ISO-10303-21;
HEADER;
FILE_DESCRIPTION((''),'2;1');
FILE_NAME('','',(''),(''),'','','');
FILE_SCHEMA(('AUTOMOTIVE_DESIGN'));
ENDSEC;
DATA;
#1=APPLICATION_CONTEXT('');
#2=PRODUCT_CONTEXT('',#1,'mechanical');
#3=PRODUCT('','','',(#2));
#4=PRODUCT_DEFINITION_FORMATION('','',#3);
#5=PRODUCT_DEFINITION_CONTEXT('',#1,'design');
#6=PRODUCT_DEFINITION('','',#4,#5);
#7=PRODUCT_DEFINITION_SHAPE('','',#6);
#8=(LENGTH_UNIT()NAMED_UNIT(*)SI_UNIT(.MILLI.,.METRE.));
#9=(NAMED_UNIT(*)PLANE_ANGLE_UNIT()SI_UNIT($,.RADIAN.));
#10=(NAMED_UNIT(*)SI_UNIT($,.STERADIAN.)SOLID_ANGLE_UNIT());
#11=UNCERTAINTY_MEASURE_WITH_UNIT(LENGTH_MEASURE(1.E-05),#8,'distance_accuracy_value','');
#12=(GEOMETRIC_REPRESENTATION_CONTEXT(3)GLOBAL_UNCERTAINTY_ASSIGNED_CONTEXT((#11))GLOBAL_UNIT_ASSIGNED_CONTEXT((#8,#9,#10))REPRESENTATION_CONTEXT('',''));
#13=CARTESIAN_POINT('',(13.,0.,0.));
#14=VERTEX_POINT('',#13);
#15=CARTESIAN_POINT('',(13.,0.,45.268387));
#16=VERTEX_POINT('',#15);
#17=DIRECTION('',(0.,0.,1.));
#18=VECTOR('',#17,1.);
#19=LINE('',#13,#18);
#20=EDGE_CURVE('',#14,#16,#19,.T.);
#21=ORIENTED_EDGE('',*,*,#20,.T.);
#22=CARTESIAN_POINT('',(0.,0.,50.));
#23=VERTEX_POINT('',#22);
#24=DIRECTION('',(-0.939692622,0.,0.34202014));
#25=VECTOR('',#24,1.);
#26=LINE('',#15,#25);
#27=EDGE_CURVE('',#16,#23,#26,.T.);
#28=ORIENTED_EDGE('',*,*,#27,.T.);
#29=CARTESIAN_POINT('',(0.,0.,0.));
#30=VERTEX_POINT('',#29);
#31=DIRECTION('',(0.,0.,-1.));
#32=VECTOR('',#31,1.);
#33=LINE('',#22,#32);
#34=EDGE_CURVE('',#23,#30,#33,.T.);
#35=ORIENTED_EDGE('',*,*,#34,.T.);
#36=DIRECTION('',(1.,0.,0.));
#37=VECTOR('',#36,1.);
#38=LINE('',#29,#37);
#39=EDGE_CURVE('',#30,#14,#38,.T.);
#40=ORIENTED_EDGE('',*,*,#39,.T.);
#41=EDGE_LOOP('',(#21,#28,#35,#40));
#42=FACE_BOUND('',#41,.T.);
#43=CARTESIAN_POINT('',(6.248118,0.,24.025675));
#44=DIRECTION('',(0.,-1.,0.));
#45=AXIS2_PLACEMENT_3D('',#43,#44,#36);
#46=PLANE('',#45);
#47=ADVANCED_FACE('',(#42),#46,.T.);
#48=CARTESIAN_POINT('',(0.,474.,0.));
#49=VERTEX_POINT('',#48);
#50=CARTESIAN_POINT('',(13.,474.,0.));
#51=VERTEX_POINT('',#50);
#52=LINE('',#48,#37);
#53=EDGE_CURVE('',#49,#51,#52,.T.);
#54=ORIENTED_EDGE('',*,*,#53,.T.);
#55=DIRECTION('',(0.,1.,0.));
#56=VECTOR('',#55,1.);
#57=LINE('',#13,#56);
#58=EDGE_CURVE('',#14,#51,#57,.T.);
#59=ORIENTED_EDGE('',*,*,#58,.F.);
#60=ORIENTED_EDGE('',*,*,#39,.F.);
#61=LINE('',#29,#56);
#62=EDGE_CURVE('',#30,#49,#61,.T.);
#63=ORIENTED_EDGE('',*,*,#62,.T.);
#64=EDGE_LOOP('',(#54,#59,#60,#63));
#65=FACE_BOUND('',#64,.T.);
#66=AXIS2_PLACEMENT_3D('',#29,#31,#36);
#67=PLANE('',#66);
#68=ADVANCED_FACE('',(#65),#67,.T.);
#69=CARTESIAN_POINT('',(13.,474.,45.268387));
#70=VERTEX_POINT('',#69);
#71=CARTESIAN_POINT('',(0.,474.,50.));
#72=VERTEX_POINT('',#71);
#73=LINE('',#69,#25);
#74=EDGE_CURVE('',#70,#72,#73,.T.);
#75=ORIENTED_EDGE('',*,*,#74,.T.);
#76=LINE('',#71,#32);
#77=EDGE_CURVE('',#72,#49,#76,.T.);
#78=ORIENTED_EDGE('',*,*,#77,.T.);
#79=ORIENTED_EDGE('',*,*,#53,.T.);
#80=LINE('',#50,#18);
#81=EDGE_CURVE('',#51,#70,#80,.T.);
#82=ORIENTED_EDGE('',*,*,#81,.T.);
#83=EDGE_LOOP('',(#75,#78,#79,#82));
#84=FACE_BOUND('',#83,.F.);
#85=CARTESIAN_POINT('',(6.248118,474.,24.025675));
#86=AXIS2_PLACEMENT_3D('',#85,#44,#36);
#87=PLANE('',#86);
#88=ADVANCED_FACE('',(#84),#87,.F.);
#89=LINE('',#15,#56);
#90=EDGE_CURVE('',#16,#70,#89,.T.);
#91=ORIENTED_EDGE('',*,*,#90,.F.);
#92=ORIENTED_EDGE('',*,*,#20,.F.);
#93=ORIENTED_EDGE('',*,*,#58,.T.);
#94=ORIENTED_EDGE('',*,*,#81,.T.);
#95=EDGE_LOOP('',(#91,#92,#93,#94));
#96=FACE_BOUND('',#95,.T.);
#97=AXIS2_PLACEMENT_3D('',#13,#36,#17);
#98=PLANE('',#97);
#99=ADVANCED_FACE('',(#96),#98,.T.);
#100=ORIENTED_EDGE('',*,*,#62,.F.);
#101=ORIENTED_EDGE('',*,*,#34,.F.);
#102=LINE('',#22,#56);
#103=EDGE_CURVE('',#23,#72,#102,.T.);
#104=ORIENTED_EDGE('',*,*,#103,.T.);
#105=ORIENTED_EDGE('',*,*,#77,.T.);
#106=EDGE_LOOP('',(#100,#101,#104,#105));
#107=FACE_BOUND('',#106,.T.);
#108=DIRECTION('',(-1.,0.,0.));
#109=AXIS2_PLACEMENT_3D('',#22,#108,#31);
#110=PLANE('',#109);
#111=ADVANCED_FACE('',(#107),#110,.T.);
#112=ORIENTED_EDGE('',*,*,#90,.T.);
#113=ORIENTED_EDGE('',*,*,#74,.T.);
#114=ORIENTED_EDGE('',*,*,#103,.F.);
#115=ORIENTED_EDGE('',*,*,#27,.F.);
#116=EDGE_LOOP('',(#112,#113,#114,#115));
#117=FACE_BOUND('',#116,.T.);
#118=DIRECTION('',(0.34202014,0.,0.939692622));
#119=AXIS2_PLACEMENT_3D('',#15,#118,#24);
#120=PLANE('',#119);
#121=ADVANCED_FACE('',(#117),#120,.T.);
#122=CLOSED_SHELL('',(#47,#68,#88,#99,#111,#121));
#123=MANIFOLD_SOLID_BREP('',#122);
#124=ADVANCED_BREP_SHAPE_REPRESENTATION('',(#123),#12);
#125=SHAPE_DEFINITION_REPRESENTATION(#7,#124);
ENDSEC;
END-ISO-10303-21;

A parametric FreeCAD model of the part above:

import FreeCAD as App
import Part
import Sketcher

V = App.Vector
Q = App.Units.Quantity

doc = App.newDocument("Part")
body = doc.addObject("PartDesign::Body", "Body")

sketch1 = doc.addObject("Sketcher::SketchObject", "Sketch")
body.addObject(sketch1)
sketch1.AttachmentSupport = (doc.XZ_Plane, [""])
sketch1.MapMode = "FlatFace"
sketch1.addGeometry(Part.LineSegment(V(13, 0, 0), V(13, 45, 0)), False)
sketch1.addGeometry(Part.LineSegment(V(13, 45, 0), V(0, 50, 0)), False)
sketch1.addGeometry(Part.LineSegment(V(0, 50, 0), V(0, 0, 0)), False)
sketch1.addGeometry(Part.LineSegment(V(0, 0, 0), V(13, 0, 0)), False)
sketch1.addConstraint(Sketcher.Constraint("Coincident", 0, 2, 1, 1))
sketch1.addConstraint(Sketcher.Constraint("Coincident", 1, 2, 2, 1))
sketch1.addConstraint(Sketcher.Constraint("Coincident", 2, 2, 3, 1))
sketch1.addConstraint(Sketcher.Constraint("Coincident", 3, 2, 0, 1))
sketch1.addConstraint(Sketcher.Constraint("Vertical", 0))
sketch1.addConstraint(Sketcher.Constraint("Vertical", 2))
sketch1.addConstraint(Sketcher.Constraint("Horizontal", 3))
sketch1.addConstraint(Sketcher.Constraint("Coincident", 2, 2, -1, 1))
sketch1.addConstraint(Sketcher.Constraint("DistanceX", 3, 1, 3, 2, 13.0))
sketch1.addConstraint(Sketcher.Constraint("DistanceY", 2, 2, 2, 1, 50.0))
sketch1.addConstraint(Sketcher.Constraint("Angle", 1, Q("160 deg")))
pad1 = doc.addObject("PartDesign::Pad", "Pad")
body.addObject(pad1)
pad1.Profile = sketch1
pad1.Length = 474
pad1.Reversed = True

doc.recompute()
